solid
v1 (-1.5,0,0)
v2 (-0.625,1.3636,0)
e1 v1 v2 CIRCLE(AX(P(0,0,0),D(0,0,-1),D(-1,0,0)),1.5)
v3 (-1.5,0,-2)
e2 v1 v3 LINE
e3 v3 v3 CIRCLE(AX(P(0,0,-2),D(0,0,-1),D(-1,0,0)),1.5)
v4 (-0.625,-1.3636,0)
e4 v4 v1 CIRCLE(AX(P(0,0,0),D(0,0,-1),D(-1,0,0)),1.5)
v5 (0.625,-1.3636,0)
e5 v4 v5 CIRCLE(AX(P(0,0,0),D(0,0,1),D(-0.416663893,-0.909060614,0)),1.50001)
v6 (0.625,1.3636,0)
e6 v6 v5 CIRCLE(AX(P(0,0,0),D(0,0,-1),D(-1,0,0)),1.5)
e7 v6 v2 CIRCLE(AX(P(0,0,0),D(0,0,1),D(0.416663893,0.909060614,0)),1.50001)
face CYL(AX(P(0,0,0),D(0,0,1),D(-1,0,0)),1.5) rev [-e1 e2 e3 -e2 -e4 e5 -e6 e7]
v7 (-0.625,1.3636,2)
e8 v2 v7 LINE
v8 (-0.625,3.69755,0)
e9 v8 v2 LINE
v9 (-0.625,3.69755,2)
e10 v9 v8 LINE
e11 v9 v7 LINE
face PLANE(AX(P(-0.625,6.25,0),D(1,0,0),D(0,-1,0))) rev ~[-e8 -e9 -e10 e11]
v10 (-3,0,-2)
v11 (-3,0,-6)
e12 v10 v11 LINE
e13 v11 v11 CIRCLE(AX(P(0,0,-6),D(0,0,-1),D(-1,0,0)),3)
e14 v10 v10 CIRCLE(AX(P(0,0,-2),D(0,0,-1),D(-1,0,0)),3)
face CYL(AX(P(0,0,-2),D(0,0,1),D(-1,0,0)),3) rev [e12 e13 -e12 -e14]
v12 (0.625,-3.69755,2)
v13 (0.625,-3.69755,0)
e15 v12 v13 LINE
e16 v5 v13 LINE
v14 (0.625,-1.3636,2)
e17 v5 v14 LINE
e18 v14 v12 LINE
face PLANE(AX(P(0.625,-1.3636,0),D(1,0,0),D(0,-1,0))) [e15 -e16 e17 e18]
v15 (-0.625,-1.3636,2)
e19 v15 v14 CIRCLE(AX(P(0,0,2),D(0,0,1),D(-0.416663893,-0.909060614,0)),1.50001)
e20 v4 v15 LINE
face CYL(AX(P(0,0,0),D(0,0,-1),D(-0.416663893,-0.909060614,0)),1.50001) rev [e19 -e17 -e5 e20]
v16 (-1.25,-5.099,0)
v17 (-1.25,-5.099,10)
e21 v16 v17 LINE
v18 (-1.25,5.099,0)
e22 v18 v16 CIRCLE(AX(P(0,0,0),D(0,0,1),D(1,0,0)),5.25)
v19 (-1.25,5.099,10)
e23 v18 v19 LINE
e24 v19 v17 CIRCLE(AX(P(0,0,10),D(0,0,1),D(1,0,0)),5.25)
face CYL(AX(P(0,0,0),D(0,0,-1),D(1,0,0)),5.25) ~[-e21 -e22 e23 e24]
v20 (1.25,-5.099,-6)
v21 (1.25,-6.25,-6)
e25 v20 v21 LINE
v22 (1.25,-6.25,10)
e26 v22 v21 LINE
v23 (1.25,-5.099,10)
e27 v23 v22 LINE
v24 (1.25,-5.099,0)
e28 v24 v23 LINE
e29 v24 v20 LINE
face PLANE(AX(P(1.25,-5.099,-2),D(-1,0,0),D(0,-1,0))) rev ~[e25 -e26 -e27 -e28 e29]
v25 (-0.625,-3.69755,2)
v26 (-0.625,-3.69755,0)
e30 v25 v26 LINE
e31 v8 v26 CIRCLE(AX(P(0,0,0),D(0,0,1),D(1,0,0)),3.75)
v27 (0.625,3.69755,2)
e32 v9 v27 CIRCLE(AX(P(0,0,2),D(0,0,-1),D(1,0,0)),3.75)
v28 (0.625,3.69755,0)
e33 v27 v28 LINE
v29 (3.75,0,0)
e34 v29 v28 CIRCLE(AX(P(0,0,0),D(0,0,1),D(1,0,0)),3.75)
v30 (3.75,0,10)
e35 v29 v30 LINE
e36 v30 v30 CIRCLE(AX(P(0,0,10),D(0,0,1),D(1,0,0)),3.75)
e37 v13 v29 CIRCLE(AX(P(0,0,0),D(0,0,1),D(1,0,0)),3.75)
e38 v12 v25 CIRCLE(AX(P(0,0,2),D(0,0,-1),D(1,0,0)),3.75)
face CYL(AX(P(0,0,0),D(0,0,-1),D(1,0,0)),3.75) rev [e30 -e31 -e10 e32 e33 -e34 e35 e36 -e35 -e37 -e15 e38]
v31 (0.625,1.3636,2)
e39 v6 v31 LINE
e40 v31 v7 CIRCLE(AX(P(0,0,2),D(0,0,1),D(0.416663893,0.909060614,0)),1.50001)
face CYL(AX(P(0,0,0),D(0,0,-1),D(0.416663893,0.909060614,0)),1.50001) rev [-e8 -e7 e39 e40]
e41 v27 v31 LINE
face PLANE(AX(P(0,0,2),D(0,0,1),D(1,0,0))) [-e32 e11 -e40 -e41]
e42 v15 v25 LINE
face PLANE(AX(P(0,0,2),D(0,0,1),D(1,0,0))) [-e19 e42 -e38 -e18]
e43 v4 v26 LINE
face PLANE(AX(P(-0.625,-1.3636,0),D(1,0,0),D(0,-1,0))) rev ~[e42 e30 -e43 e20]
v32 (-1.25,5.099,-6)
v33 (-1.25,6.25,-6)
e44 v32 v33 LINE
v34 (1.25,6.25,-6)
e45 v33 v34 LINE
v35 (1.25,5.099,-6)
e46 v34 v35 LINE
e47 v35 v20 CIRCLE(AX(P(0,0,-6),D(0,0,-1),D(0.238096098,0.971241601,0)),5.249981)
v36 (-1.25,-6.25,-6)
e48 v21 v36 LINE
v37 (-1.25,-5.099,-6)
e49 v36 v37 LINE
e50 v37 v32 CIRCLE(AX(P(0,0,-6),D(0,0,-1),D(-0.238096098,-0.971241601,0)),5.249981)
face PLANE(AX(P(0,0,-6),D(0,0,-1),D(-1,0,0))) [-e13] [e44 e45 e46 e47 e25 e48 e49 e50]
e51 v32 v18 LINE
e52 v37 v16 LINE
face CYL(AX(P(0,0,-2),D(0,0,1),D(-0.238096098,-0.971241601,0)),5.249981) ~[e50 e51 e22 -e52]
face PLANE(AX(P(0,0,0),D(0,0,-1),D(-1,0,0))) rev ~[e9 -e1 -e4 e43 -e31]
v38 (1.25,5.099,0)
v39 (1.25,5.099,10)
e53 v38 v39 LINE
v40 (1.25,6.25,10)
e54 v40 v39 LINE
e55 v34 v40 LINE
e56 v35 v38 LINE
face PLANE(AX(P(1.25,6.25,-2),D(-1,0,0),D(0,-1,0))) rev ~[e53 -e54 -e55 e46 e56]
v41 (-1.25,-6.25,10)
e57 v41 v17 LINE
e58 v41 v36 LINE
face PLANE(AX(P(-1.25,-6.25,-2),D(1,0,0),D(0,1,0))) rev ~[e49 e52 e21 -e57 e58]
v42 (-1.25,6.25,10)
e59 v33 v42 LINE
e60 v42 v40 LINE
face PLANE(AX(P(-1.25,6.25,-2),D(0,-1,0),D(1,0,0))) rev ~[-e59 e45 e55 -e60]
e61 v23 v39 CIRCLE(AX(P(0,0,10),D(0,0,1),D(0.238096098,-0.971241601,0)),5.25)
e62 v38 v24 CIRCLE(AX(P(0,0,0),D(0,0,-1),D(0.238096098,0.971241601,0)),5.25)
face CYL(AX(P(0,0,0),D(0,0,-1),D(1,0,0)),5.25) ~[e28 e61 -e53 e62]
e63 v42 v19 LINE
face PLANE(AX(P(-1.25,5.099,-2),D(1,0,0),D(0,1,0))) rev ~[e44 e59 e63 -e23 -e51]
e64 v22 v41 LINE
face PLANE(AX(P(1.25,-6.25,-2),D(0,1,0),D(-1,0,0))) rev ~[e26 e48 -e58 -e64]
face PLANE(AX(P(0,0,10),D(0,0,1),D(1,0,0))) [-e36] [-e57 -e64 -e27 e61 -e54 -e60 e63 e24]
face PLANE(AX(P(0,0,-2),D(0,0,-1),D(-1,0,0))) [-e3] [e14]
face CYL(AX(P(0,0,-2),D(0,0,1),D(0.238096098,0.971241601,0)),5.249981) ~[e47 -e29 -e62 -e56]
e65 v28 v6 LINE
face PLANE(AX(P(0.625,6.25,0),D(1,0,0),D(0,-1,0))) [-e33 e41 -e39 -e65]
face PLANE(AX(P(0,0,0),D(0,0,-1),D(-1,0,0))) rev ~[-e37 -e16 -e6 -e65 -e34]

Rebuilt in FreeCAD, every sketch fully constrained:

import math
import FreeCAD as App
import Part
import Sketcher

V = App.Vector

doc = App.newDocument("Part")
body = doc.addObject("PartDesign::Body", "Body")

# Sketch on XY plane
sketch1 = doc.addObject("Sketcher::SketchObject", "Sketch")
body.addObject(sketch1)
sketch1.AttachmentSupport = (doc.XY_Plane, [""])
sketch1.MapMode = "FlatFace"
sketch1.addGeometry([
    Part.LineSegment(V(-1.2, -6.2, 0), V(1.2, -6.2, 0)),  # 0
    Part.LineSegment(V(1.2, -6.2, 0), V(1.2, -5.1, 0)),  # 1
    Part.ArcOfCircle(Part.Circle(V(0, 0, 0), V(0, 0, 1), 5.2), math.radians(-76), math.radians(76)),  # 2
    Part.LineSegment(V(1.2, 5.1, 0), V(1.2, 6.2, 0)),  # 3
    Part.LineSegment(V(1.2, 6.2, 0), V(-1.2, 6.2, 0)),  # 4
    Part.LineSegment(V(-1.2, 6.2, 0), V(-1.2, 5.1, 0)),  # 5
    Part.ArcOfCircle(Part.Circle(V(0, 0, 0), V(0, 0, 1), 5.2), math.radians(104), math.radians(256)),  # 6
    Part.LineSegment(V(-1.2, -5.1, 0), V(-1.2, -6.2, 0)),  # 7
    Part.Circle(V(0, 0, 0), V(0, 0, 1), 3.8),  # 8
], False)
sketch1.addConstraint([
    Sketcher.Constraint("Coincident", 0, 2, 1, 1),
    Sketcher.Constraint("Coincident", 1, 2, 2, 1),
    Sketcher.Constraint("Coincident", 2, 2, 3, 1),
    Sketcher.Constraint("Coincident", 3, 2, 4, 1),
    Sketcher.Constraint("Coincident", 4, 2, 5, 1),
    Sketcher.Constraint("Coincident", 5, 2, 6, 1),
    Sketcher.Constraint("Coincident", 6, 2, 7, 1),
    Sketcher.Constraint("Coincident", 7, 2, 0, 1),
    Sketcher.Constraint("Horizontal", 0),
    Sketcher.Constraint("Vertical", 1),
    Sketcher.Constraint("Vertical", 3),
    Sketcher.Constraint("Horizontal", 4),
    Sketcher.Constraint("Vertical", 5),
    Sketcher.Constraint("Vertical", 7),
    Sketcher.Constraint("Coincident", 2, 3, -1, 1),
    Sketcher.Constraint("Coincident", 6, 3, -1, 1),
    Sketcher.Constraint("Coincident", 8, 3, -1, 1),
    Sketcher.Constraint("Equal", 2, 6),
    Sketcher.Constraint("Symmetric", 0, 2, 4, 2, -1, 1),
    Sketcher.Constraint("Horizontal", 2, 2, 5, 2),
    Sketcher.Constraint("Horizontal", 1, 2, 6, 2),
    Sketcher.Constraint("Diameter", 8, 7.5),
    Sketcher.Constraint("Radius", 2, 5.25),
    Sketcher.Constraint("DistanceX", 0, 1, 0, 2, 2.5),
    Sketcher.Constraint("DistanceY", 1, 1, 1, 2, 1.151),
])
pad1 = doc.addObject("PartDesign::Pad", "Pad")
body.addObject(pad1)
pad1.Profile = sketch1
pad1.Length = 10

# Sketch on XY plane
sketch2 = doc.addObject("Sketcher::SketchObject", "Sketch001")
body.addObject(sketch2)
sketch2.AttachmentSupport = (doc.XY_Plane, [""])
sketch2.MapMode = "FlatFace"
sketch2.addGeometry([
    Part.LineSegment(V(1.2, -5.1, 0), V(1.2, -6.2, 0)),  # 0
    Part.LineSegment(V(1.2, -6.2, 0), V(-1.2, -6.2, 0)),  # 1
    Part.LineSegment(V(-1.2, -6.2, 0), V(-1.2, -5.1, 0)),  # 2
    Part.ArcOfCircle(Part.Circle(V(0, 0, 0), V(0, 0, 1), 5.2), math.radians(104), math.radians(256)),  # 3
    Part.LineSegment(V(-1.2, 5.1, 0), V(-1.2, 6.2, 0)),  # 4
    Part.LineSegment(V(-1.2, 6.2, 0), V(1.2, 6.2, 0)),  # 5
    Part.LineSegment(V(1.2, 6.2, 0), V(1.2, 5.1, 0)),  # 6
    Part.ArcOfCircle(Part.Circle(V(0, 0, 0), V(0, 0, 1), 5.2), math.radians(-76), math.radians(76)),  # 7
    Part.Circle(V(0, 0, 0), V(0, 0, 1), 1.5),  # 8
], False)
sketch2.addConstraint([
    Sketcher.Constraint("Coincident", 0, 2, 1, 1),
    Sketcher.Constraint("Coincident", 1, 2, 2, 1),
    Sketcher.Constraint("Coincident", 2, 2, 3, 2),
    Sketcher.Constraint("Coincident", 3, 1, 4, 1),
    Sketcher.Constraint("Coincident", 4, 2, 5, 1),
    Sketcher.Constraint("Coincident", 5, 2, 6, 1),
    Sketcher.Constraint("Coincident", 6, 2, 7, 2),
    Sketcher.Constraint("Coincident", 7, 1, 0, 1),
    Sketcher.Constraint("Vertical", 0),
    Sketcher.Constraint("Horizontal", 1),
    Sketcher.Constraint("Vertical", 2),
    Sketcher.Constraint("Vertical", 4),
    Sketcher.Constraint("Horizontal", 5),
    Sketcher.Constraint("Vertical", 6),
    Sketcher.Constraint("Coincident", 3, 3, -1, 1),
    Sketcher.Constraint("Coincident", 7, 3, -1, 1),
    Sketcher.Constraint("Coincident", 8, 3, -1, 1),
    Sketcher.Constraint("Equal", 3, 7),
    Sketcher.Constraint("Symmetric", 0, 2, 4, 2, -1, 1),
    Sketcher.Constraint("Horizontal", 3, 1, 6, 2),
    Sketcher.Constraint("Horizontal", 2, 2, 7, 1),
    Sketcher.Constraint("Diameter", 8, 3.0),
    Sketcher.Constraint("Radius", 3, 5.25),
    Sketcher.Constraint("DistanceX", 1, 2, 1, 1, 2.5),
    Sketcher.Constraint("DistanceY", 0, 2, 0, 1, 1.151),
])
pad2 = doc.addObject("PartDesign::Pad", "Pad001")
body.addObject(pad2)
pad2.Profile = sketch2
pad2.Length = 2
pad2.Reversed = True

# Sketch on XY plane
sketch3 = doc.addObject("Sketcher::SketchObject", "Sketch002")
body.addObject(sketch3)
sketch3.AttachmentSupport = (doc.XY_Plane, [""])
sketch3.MapMode = "FlatFace"
sketch3.addGeometry([
    Part.LineSegment(V(0.6, 1.4, 0), V(0.6, 6.2, 0)),  # 0
    Part.LineSegment(V(0.6, 6.2, 0), V(-0.6, 6.2, 0)),  # 1
    Part.LineSegment(V(-0.6, 6.2, 0), V(-0.6, 1.4, 0)),  # 2
    Part.ArcOfCircle(Part.Circle(V(0, 0, 0), V(0, 0, 1), 1.5), math.radians(65), math.radians(115)),  # 3
    Part.LineSegment(V(-0.6, -1.4, 0), V(-0.6, -6.2, 0)),  # 4
    Part.LineSegment(V(-0.6, -6.2, 0), V(0.6, -6.2, 0)),  # 5
    Part.LineSegment(V(0.6, -6.2, 0), V(0.6, -1.4, 0)),  # 6
    Part.ArcOfCircle(Part.Circle(V(0, 0, 0), V(0, 0, 1), 1.5), math.radians(-115), math.radians(-65)),  # 7
], False)
sketch3.addConstraint([
    Sketcher.Constraint("Coincident", 0, 2, 1, 1),
    Sketcher.Constraint("Coincident", 1, 2, 2, 1),
    Sketcher.Constraint("Coincident", 2, 2, 3, 2),
    Sketcher.Constraint("Coincident", 3, 1, 0, 1),
    Sketcher.Constraint("Coincident", 4, 2, 5, 1),
    Sketcher.Constraint("Coincident", 5, 2, 6, 1),
    Sketcher.Constraint("Coincident", 6, 2, 7, 2),
    Sketcher.Constraint("Coincident", 7, 1, 4, 1),
    Sketcher.Constraint("Vertical", 0),
    Sketcher.Constraint("Horizontal", 1),
    Sketcher.Constraint("Vertical", 2),
    Sketcher.Constraint("Vertical", 4),
    Sketcher.Constraint("Horizontal", 5),
    Sketcher.Constraint("Vertical", 6),
    Sketcher.Constraint("Coincident", 3, 3, -1, 1),
    Sketcher.Constraint("Coincident", 7, 3, -1, 1),
    Sketcher.Constraint("Equal", 3, 7),
    Sketcher.Constraint("Symmetric", 0, 2, 4, 2, -1, 1),
    Sketcher.Constraint("Horizontal", 2, 2, 3, 1),
    Sketcher.Constraint("Horizontal", 6, 2, 7, 1),
    Sketcher.Constraint("DistanceX", 1, 2, 1, 1, 1.25),
    Sketcher.Constraint("Radius", 3, 1.5),
    Sketcher.Constraint("DistanceY", 4, 2, 1, 2, 12.5),
])
pad3 = doc.addObject("PartDesign::Pad", "Pad002")
body.addObject(pad3)
pad3.Profile = sketch3
pad3.Length = 2

# Sketch on XY plane
sketch4 = doc.addObject("Sketcher::SketchObject", "Sketch003")
body.addObject(sketch4)
sketch4.AttachmentSupport = (doc.XY_Plane, [""])
sketch4.MapMode = "FlatFace"
sketch4.AttachmentOffset = App.Placement(V(0, 0, -2), App.Rotation())
sketch4.addGeometry([
    Part.ArcOfCircle(Part.Circle(V(0, 0, 0), V(0, 0, 1), 5.2), math.radians(-76), math.radians(76)),  # 0
    Part.LineSegment(V(1.2, -5.1, 0), V(1.2, -6.2, 0)),  # 1
    Part.LineSegment(V(1.2, -6.2, 0), V(-1.2, -6.2, 0)),  # 2
    Part.LineSegment(V(-1.2, -6.2, 0), V(-1.2, -5.1, 0)),  # 3
    Part.ArcOfCircle(Part.Circle(V(0, 0, 0), V(0, 0, 1), 5.2), math.radians(104), math.radians(256)),  # 4
    Part.LineSegment(V(-1.2, 5.1, 0), V(-1.2, 6.2, 0)),  # 5
    Part.LineSegment(V(-1.2, 6.2, 0), V(1.2, 6.2, 0)),  # 6
    Part.LineSegment(V(1.2, 6.2, 0), V(1.2, 5.1, 0)),  # 7
    Part.Circle(V(0, 0, 0), V(0, 0, 1), 3),  # 8
], False)
sketch4.addConstraint([
    Sketcher.Constraint("Coincident", 0, 1, 1, 1),
    Sketcher.Constraint("Coincident", 1, 2, 2, 1),
    Sketcher.Constraint("Coincident", 2, 2, 3, 1),
    Sketcher.Constraint("Coincident", 3, 2, 4, 2),
    Sketcher.Constraint("Coincident", 4, 1, 5, 1),
    Sketcher.Constraint("Coincident", 5, 2, 6, 1),
    Sketcher.Constraint("Coincident", 6, 2, 7, 1),
    Sketcher.Constraint("Coincident", 7, 2, 0, 2),
    Sketcher.Constraint("Vertical", 1),
    Sketcher.Constraint("Horizontal", 2),
    Sketcher.Constraint("Vertical", 3),
    Sketcher.Constraint("Vertical", 5),
    Sketcher.Constraint("Horizontal", 6),
    Sketcher.Constraint("Vertical", 7),
    Sketcher.Constraint("Coincident", 0, 3, -1, 1),
    Sketcher.Constraint("Coincident", 4, 3, -1, 1),
    Sketcher.Constraint("Coincident", 8, 3, -1, 1),
    Sketcher.Constraint("Equal", 0, 4),
    Sketcher.Constraint("Symmetric", 1, 2, 5, 2, -1, 1),
    Sketcher.Constraint("Horizontal", 0, 1, 3, 2),
    Sketcher.Constraint("Horizontal", 4, 1, 7, 2),
    Sketcher.Constraint("Diameter", 8, 6.0),
    Sketcher.Constraint("Radius", 0, 5.25),
    Sketcher.Constraint("DistanceX", 2, 2, 2, 1, 2.5),
    Sketcher.Constraint("DistanceY", 1, 2, 1, 1, 1.151),
])
pad4 = doc.addObject("PartDesign::Pad", "Pad003")
body.addObject(pad4)
pad4.Profile = sketch4
pad4.Length = 4
pad4.Reversed = True

doc.recompute()
